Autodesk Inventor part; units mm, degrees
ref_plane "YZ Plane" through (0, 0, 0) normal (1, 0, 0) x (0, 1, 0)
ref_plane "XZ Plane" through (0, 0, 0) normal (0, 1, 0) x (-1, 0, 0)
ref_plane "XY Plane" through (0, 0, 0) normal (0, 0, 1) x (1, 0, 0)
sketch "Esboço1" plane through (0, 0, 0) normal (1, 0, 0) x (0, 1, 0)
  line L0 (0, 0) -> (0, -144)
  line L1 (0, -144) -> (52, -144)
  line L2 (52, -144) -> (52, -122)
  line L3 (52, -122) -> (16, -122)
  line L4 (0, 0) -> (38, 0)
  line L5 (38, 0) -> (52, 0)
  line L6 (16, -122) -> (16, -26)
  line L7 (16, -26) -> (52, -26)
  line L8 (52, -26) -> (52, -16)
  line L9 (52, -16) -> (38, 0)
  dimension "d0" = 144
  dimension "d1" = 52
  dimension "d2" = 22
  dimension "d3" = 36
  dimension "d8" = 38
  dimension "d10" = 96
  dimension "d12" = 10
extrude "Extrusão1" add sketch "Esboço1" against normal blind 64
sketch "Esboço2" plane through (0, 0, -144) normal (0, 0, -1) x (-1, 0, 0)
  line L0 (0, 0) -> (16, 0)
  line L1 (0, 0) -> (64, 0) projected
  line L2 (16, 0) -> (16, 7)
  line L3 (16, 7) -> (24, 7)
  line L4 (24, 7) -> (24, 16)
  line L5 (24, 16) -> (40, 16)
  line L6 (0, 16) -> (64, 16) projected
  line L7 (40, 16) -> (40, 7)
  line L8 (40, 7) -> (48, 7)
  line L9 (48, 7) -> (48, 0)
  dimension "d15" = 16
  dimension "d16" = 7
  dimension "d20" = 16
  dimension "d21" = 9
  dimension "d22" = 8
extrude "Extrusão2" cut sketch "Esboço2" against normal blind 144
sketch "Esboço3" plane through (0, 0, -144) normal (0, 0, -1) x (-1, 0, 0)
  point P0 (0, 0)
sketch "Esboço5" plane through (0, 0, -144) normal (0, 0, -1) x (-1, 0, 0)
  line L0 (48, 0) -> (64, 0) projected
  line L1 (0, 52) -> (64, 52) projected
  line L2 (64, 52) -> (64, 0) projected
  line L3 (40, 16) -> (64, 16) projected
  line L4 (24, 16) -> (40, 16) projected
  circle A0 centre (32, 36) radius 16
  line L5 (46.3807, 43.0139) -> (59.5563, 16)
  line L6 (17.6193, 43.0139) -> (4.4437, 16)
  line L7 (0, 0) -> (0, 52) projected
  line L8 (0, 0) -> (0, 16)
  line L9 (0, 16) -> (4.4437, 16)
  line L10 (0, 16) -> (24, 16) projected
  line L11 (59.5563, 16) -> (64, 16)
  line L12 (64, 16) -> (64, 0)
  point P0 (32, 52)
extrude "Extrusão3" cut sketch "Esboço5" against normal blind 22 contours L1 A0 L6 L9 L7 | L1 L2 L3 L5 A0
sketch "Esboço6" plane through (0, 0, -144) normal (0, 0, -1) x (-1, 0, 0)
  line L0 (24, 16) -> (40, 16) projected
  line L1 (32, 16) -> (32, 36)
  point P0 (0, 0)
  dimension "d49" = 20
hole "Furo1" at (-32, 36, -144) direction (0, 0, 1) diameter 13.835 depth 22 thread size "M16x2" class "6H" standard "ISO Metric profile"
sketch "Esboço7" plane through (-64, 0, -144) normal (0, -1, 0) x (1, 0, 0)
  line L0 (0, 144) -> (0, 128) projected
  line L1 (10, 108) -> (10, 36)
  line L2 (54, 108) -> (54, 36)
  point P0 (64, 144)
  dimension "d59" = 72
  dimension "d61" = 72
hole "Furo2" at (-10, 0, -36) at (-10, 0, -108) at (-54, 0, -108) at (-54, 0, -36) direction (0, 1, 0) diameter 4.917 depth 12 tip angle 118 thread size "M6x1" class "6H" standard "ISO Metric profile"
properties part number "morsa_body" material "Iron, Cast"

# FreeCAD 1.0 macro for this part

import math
import FreeCAD as App
import Part
import Sketcher
from FreeCAD import Vector
Q = App.Units.Quantity


def add_polygon(sketch, points):
    """Adds a closed chain of lines whose ends are joined by coincident constraints."""
    first, n = sketch.GeometryCount, len(points)
    for a, b in zip(points, points[1:] + points[:1]):
        sketch.addGeometry(Part.LineSegment(App.Vector(*a, 0), App.Vector(*b, 0)), False)
    for i in range(n):
        sketch.addConstraint(Sketcher.Constraint("Coincident", first + i, 2, first + (i + 1) % n, 1))

doc = App.newDocument("Part")
params = doc.addObject("Spreadsheet::Sheet", "Params")
for row, (alias, value) in enumerate([
    ("sketch1_width", "38 mm"),
    ("sketch1_width2", "52 mm"),
    ("sketch1_width3", "36 mm"),
    ("sketch1_height", "144 mm"),
    ("sketch1_height2", "22 mm"),
    ("pad1_length", "64 mm"),
    ("sketch2_width", "8 mm"),
    ("sketch2_width2", "16 mm"),
    ("sketch2_height", "7 mm"),
    ("sketch2_height2", "9 mm"),
    ("pocket1_length", "144 mm"),
    ("sketch3_radius", "16 mm"),
    ("sketch3_width", "32 mm"),
    ("sketch3_height", "36 mm"),
    ("pocket2_length", "22 mm"),
    ("hole_diameter", "13.835 mm"),
    ("hole_depth", "22 mm"),
    ("hole2_diameter", "4.917 mm"),
    ("hole2_depth", "12 mm"),
], start=1):
    params.set(f"A{row}", alias)
    params.set(f"B{row}", "=" + value)
    params.setAlias(f"B{row}", alias)

body = doc.addObject("PartDesign::Body", "Body")

# Sketch on YZ plane
sketch1 = body.newObject("Sketcher::SketchObject", "Sketch")
sketch1.AttachmentSupport = (doc.getObject("YZ_Plane"), [""])
sketch1.MapMode = "FlatFace"
add_polygon(sketch1, [(38, 0), (0, 0), (0, -144), (52, -144), (52, -122), (16, -122), (16, -26), (52, -26), (52, -16)])  # lines 0-8
sketch1.addConstraint([
    Sketcher.Constraint("Horizontal", 0),
    Sketcher.Constraint("Vertical", 1),
    Sketcher.Constraint("Horizontal", 2),
    Sketcher.Constraint("Vertical", 3),
    Sketcher.Constraint("Horizontal", 4),
    Sketcher.Constraint("Vertical", 5),
    Sketcher.Constraint("Horizontal", 6),
    Sketcher.Constraint("Vertical", 7),
    Sketcher.Constraint("Coincident", 0, 2, -1, 1),
    Sketcher.Constraint("Vertical", 3, 2, 6, 2),
    Sketcher.Constraint("DistanceX", 0, 2, 0, 1, Q("38 mm")),
    Sketcher.Constraint("DistanceX", 2, 1, 2, 2, Q("52 mm")),
    Sketcher.Constraint("DistanceX", 4, 2, 4, 1, Q("36 mm")),
    Sketcher.Constraint("DistanceY", 1, 2, 1, 1, Q("144 mm")),
    Sketcher.Constraint("DistanceY", 3, 1, 3, 2, Q("22 mm")),
    Sketcher.Constraint("DistanceY", 5, 1, 5, 2, Q("96 mm")),
    Sketcher.Constraint("DistanceY", 7, 1, 7, 2, Q("10 mm")),
])
sketch1.setExpression("Constraints[19]", "Params.sketch1_width")
sketch1.setExpression("Constraints[20]", "Params.sketch1_width2")
sketch1.setExpression("Constraints[21]", "Params.sketch1_width3")
sketch1.setExpression("Constraints[22]", "Params.sketch1_height")
sketch1.setExpression("Constraints[23]", "Params.sketch1_height2")
pad1 = body.newObject("PartDesign::Pad", "Pad")
pad1.Profile = sketch1
pad1.setExpression("Length", "Params.pad1_length")
pad1.Reversed = True

# Sketch on XY plane
sketch2 = body.newObject("Sketcher::SketchObject", "Sketch001")
sketch2.AttachmentSupport = (doc.getObject("XY_Plane"), [""])
sketch2.MapMode = "FlatFace"
sketch2.AttachmentOffset = App.Placement(Vector(0, 0, -144), App.Rotation())
add_polygon(sketch2, [(-16, 7), (-16, 0), (-48, 0), (-48, 7), (-40, 7), (-40, 16), (-24, 16), (-24, 7)])  # lines 0-7
sketch2.addConstraint([
    Sketcher.Constraint("Vertical", 0),
    Sketcher.Constraint("Horizontal", 1),
    Sketcher.Constraint("Vertical", 2),
    Sketcher.Constraint("Horizontal", 3),
    Sketcher.Constraint("Vertical", 4),
    Sketcher.Constraint("Horizontal", 5),
    Sketcher.Constraint("Vertical", 6),
    Sketcher.Constraint("Horizontal", 7),
    Sketcher.Constraint("PointOnObject", 0, 2, -1),
    Sketcher.Constraint("Horizontal", 3, 2, 6, 2),
    Sketcher.Constraint("Equal", 3, 7),
    Sketcher.Constraint("DistanceX", 3, 1, 3, 2, Q("8 mm")),
    Sketcher.Constraint("DistanceX", 5, 1, 5, 2, Q("16 mm")),
    Sketcher.Constraint("DistanceY", 0, 2, 0, 1, Q("7 mm")),
    Sketcher.Constraint("DistanceY", 4, 1, 4, 2, Q("9 mm")),
    Sketcher.Constraint("DistanceX", 0, 2, -1, 1, Q("16 mm")),
])
sketch2.setExpression("Constraints[19]", "Params.sketch2_width")
sketch2.setExpression("Constraints[20]", "Params.sketch2_width2")
sketch2.setExpression("Constraints[21]", "Params.sketch2_height")
sketch2.setExpression("Constraints[22]", "Params.sketch2_height2")
pocket1 = body.newObject("PartDesign::Pocket", "Pocket")
pocket1.Profile = sketch2
pocket1.setExpression("Length", "Params.pocket1_length")
pocket1.Reversed = True

# Sketch on XY plane
sketch3 = body.newObject("Sketcher::SketchObject", "Sketch002")
sketch3.AttachmentSupport = (doc.getObject("XY_Plane"), [""])
sketch3.MapMode = "FlatFace"
sketch3.AttachmentOffset = App.Placement(Vector(0, 0, -144), App.Rotation())
sketch3.addGeometry([
    Part.LineSegment(Vector(-32, 52, 0), Vector(0, 52, 0)),  # 0
    Part.LineSegment(Vector(0, 52, 0), Vector(0, 16, 0)),  # 1
    Part.LineSegment(Vector(0, 16, 0), Vector(-4.4, 16, 0)),  # 2
    Part.LineSegment(Vector(-4.4, 16, 0), Vector(-17.6, 43, 0)),  # 3
    Part.ArcOfCircle(Part.Circle(Vector(-32, 36, 0), Vector(0, 0, 1), 16), math.radians(26), math.radians(90)),  # 4
    Part.LineSegment(Vector(-64, 52, 0), Vector(-32, 52, 0)),  # 5
    Part.ArcOfCircle(Part.Circle(Vector(-32, 36, 0), Vector(0, 0, 1), 16), math.radians(90), math.radians(154)),  # 6
    Part.LineSegment(Vector(-46.4, 43, 0), Vector(-59.6, 16, 0)),  # 7
    Part.LineSegment(Vector(-59.6, 16, 0), Vector(-64, 16, 0)),  # 8
    Part.LineSegment(Vector(-64, 16, 0), Vector(-64, 52, 0)),  # 9
], False)
sketch3.addConstraint([
    Sketcher.Constraint("Coincident", 0, 2, 1, 1),
    Sketcher.Constraint("Coincident", 1, 2, 2, 1),
    Sketcher.Constraint("Coincident", 2, 2, 3, 1),
    Sketcher.Constraint("Tangent", 3, 2, 4, 1),
    Sketcher.Constraint("Tangent", 4, 2, 0, 1),
    Sketcher.Constraint("Tangent", 5, 2, 6, 1),
    Sketcher.Constraint("Tangent", 6, 2, 7, 1),
    Sketcher.Constraint("Coincident", 7, 2, 8, 1),
    Sketcher.Constraint("Coincident", 8, 2, 9, 1),
    Sketcher.Constraint("Coincident", 9, 2, 5, 1),
    Sketcher.Constraint("Horizontal", 0),
    Sketcher.Constraint("Vertical", 1),
    Sketcher.Constraint("Horizontal", 2),
    Sketcher.Constraint("Horizontal", 5),
    Sketcher.Constraint("Horizontal", 8),
    Sketcher.Constraint("Vertical", 9),
    Sketcher.Constraint("Coincident", 6, 3, 4, 3),
    Sketcher.Constraint("Equal", 4, 6),
    Sketcher.Constraint("PointOnObject", 0, 2, -2),
    Sketcher.Constraint("Horizontal", 3, 2, 6, 2),
    Sketcher.Constraint("Horizontal", 2, 2, 7, 2),
    Sketcher.Constraint("Equal", 0, 5),
    Sketcher.Constraint("Radius", 4, Q("16 mm")),
    Sketcher.Constraint("DistanceX", 0, 1, 0, 2, Q("32 mm")),
    Sketcher.Constraint("DistanceY", 1, 2, 1, 1, Q("36 mm")),
    Sketcher.Constraint("Angle", 3, Q("116 deg")),
    Sketcher.Constraint("DistanceY", -1, 1, 4, 3, Q("36 mm")),
])
sketch3.setExpression("Constraints[22]", "Params.sketch3_radius")
sketch3.setExpression("Constraints[23]", "Params.sketch3_width")
sketch3.setExpression("Constraints[24]", "Params.sketch3_height")
pocket2 = body.newObject("PartDesign::Pocket", "Pocket001")
pocket2.Profile = sketch3
pocket2.setExpression("Length", "Params.pocket2_length")
pocket2.Reversed = True

# Sketch on XY plane
sketch4 = body.newObject("Sketcher::SketchObject", "Sketch003")
sketch4.AttachmentSupport = (doc.getObject("XY_Plane"), [""])
sketch4.MapMode = "FlatFace"
sketch4.AttachmentOffset = App.Placement(Vector(0, 0, -144), App.Rotation())
sketch4.addGeometry(Part.Circle(Vector(-32, 36, 0), Vector(0, 0, 1), 7), False)
sketch4.addConstraint([
    Sketcher.Constraint("Diameter", 0, Q("13.835 mm")),
    Sketcher.Constraint("DistanceX", 0, 3, -1, 1, Q("32 mm")),
    Sketcher.Constraint("DistanceY", -1, 1, 0, 3, Q("36 mm")),
])
doc.recompute()
hole = body.newObject("PartDesign::Hole", "Hole")
hole.Profile = sketch4
hole.ThreadType = "None"
hole.setExpression("Diameter", "Params.hole_diameter")
hole.DepthType = "Dimension"
hole.setExpression("Depth", "Params.hole_depth")
hole.DrillPoint = "Flat"
hole.Reversed = True

# Sketch on XZ plane
sketch5 = body.newObject("Sketcher::SketchObject", "Sketch004")
sketch5.AttachmentSupport = (doc.getObject("XZ_Plane"), [""])
sketch5.MapMode = "FlatFace"
sketch5.addGeometry([
    Part.Circle(Vector(-10, -36, 0), Vector(0, 0, 1), 2.5),
    Part.Circle(Vector(-10, -108, 0), Vector(0, 0, 1), 2.5),
    Part.Circle(Vector(-54, -108, 0), Vector(0, 0, 1), 2.5),
    Part.Circle(Vector(-54, -36, 0), Vector(0, 0, 1), 2.5),
], False)
sketch5.addConstraint([
    Sketcher.Constraint("Equal", 0, 1),
    Sketcher.Constraint("Equal", 1, 2),
    Sketcher.Constraint("Equal", 2, 3),
    Sketcher.Constraint("Horizontal", 1, 3, 2, 3),
    Sketcher.Constraint("Horizontal", 0, 3, 3, 3),
    Sketcher.Constraint("Vertical", 0, 3, 1, 3),
    Sketcher.Constraint("Vertical", 2, 3, 3, 3),
    Sketcher.Constraint("Diameter", 0, Q("4.917 mm")),
    Sketcher.Constraint("DistanceX", 0, 3, -1, 1, Q("10 mm")),
    Sketcher.Constraint("DistanceY", 0, 3, -1, 1, Q("36 mm")),
    Sketcher.Constraint("DistanceY", 1, 3, -1, 1, Q("108 mm")),
    Sketcher.Constraint("DistanceX", 2, 3, -1, 1, Q("54 mm")),
])
doc.recompute()
hole2 = body.newObject("PartDesign::Hole", "Hole001")
hole2.Profile = sketch5
hole2.ThreadType = "None"
hole2.setExpression("Diameter", "Params.hole2_diameter")
hole2.DepthType = "Dimension"
hole2.setExpression("Depth", "Params.hole2_depth")
hole2.DrillPoint = "Angled"
hole2.DrillPointAngle = 118

doc.recompute()
